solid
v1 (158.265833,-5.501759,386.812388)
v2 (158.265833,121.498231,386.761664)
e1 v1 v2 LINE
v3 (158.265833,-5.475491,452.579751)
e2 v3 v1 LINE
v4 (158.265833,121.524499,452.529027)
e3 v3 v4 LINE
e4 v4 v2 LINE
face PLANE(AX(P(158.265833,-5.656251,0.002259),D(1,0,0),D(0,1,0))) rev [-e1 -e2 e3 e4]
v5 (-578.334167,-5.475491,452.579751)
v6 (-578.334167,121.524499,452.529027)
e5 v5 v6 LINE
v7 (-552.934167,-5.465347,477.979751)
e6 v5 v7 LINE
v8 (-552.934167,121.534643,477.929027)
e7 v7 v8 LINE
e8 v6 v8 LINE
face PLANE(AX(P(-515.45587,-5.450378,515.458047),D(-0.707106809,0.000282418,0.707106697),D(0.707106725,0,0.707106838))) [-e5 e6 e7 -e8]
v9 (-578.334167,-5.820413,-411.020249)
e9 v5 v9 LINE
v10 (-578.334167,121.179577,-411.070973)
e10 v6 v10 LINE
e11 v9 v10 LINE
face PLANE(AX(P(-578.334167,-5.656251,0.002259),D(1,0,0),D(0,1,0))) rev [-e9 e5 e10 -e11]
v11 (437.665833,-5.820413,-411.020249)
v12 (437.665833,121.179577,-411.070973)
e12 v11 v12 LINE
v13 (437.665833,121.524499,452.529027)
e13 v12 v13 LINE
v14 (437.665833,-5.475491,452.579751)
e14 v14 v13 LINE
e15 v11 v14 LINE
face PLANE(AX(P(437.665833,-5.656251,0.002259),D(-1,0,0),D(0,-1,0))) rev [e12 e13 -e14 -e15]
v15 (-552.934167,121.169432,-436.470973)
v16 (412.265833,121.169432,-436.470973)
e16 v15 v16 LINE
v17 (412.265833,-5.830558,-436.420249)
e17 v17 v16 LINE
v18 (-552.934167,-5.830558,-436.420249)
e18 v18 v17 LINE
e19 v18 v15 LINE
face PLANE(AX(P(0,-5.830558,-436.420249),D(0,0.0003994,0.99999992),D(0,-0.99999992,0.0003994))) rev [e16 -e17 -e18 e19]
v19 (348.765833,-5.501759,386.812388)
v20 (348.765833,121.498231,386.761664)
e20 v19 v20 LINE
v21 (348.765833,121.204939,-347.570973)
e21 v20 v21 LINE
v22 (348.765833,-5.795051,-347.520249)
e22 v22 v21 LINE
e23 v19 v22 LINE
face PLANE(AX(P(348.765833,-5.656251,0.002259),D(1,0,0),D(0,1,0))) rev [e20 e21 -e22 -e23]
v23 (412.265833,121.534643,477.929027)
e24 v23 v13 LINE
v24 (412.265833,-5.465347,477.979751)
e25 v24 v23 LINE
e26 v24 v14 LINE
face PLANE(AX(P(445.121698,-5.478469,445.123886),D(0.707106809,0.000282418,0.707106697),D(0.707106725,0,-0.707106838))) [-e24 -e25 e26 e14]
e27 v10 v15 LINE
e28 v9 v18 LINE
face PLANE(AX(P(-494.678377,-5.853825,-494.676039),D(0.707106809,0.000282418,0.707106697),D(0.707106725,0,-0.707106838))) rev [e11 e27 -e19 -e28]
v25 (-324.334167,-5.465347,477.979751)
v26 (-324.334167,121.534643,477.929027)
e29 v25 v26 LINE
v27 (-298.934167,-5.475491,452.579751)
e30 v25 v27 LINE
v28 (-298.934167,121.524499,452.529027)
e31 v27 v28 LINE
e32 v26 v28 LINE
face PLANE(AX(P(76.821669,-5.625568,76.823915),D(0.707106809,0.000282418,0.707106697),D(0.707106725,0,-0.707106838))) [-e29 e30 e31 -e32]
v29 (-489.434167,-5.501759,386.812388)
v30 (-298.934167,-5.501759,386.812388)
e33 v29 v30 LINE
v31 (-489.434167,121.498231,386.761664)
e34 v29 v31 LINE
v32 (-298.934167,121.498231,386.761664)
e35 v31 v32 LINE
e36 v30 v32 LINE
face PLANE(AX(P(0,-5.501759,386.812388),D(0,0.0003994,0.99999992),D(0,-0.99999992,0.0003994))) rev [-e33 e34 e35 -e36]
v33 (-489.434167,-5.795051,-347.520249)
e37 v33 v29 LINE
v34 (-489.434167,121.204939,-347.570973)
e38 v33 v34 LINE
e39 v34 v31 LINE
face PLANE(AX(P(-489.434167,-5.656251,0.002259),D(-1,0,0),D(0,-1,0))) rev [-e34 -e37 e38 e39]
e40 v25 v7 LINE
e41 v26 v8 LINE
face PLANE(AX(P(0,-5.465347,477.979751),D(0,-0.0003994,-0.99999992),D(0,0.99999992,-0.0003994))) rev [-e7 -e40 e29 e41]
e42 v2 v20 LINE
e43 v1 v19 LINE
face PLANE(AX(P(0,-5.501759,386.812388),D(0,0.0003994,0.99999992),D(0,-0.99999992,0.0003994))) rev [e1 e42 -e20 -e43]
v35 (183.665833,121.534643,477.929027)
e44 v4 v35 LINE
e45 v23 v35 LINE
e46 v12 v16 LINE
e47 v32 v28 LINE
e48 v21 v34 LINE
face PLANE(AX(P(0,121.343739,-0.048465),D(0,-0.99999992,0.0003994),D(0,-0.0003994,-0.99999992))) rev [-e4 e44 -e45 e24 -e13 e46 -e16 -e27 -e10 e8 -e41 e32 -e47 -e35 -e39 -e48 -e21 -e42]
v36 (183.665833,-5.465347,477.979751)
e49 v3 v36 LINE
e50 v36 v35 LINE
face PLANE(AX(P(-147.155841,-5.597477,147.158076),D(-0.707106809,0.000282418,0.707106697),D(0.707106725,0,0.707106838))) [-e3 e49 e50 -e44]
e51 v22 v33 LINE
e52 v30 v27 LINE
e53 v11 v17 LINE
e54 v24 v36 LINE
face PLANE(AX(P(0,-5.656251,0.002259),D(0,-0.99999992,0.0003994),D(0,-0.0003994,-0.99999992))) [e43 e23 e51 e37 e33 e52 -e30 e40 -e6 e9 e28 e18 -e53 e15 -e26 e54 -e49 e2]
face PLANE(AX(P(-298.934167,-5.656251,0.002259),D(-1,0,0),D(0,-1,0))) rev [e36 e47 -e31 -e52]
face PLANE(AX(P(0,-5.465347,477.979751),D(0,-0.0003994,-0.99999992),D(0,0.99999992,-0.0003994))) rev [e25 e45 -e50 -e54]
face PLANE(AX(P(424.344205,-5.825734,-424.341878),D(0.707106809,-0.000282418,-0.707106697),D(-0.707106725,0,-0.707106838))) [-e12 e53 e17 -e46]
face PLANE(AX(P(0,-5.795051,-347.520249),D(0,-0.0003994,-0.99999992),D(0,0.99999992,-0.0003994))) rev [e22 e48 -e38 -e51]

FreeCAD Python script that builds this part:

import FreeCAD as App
import Part
import Sketcher
Q = App.Units.Quantity


def add_polygon(sketch, points):
    """Adds a closed chain of lines whose ends are joined by coincident constraints."""
    first, n = sketch.GeometryCount, len(points)
    for a, b in zip(points, points[1:] + points[:1]):
        sketch.addGeometry(Part.LineSegment(App.Vector(*a, 0), App.Vector(*b, 0)), False)
    for i in range(n):
        sketch.addConstraint(Sketcher.Constraint("Coincident", first + i, 2, first + (i + 1) % n, 1))

doc = App.newDocument("Part")
params = doc.addObject("Spreadsheet::Sheet", "Params")
for row, (alias, value) in enumerate([
    ("sketch1_width", "9 in"),
    ("sketch1_width2", "33 in"),
    ("sketch1_width3", "38 in"),
    ("sketch1_width4", "7.5 in"),
    ("pad1_length", "5 in"),
], start=1):
    params.set(f"A{row}", alias)
    params.set(f"B{row}", "=" + value)
    params.setAlias(f"B{row}", alias)

body = doc.addObject("PartDesign::Body", "Body")

# Sketch on an angled plane
sketch1 = body.newObject("Sketcher::SketchObject", "Sketch")
sketch1.Placement = App.Placement(App.Vector(0, 57.843753, -0.000024), App.Rotation(App.Vector(-1, 0, 0), App.Vector(0, -0.0003994, -0.99999992), App.Vector(0, -0.99999992, 0.0003994), "ZXY"))
add_polygon(sketch1, [(-412, -478), (-184, -478), (-158, -453), (-158, -387), (-349, -387), (-349, 348), (489, 348), (489, -387), (299, -387), (299, -453), (324, -478), (553, -478), (578, -453), (578, 411), (553, 436), (-412, 436), (-438, 411), (-438, -453)])  # lines 0-17
sketch1.addConstraint([
    Sketcher.Constraint("Horizontal", 0),
    Sketcher.Constraint("Vertical", 2),
    Sketcher.Constraint("Horizontal", 3),
    Sketcher.Constraint("Vertical", 4),
    Sketcher.Constraint("Horizontal", 5),
    Sketcher.Constraint("Vertical", 6),
    Sketcher.Constraint("Horizontal", 7),
    Sketcher.Constraint("Vertical", 8),
    Sketcher.Constraint("Horizontal", 10),
    Sketcher.Constraint("Vertical", 12),
    Sketcher.Constraint("Horizontal", 14),
    Sketcher.Constraint("Vertical", 16),
    Sketcher.Constraint("Perpendicular", 1, 9),
    Sketcher.Constraint("Perpendicular", 9, 11),
    Sketcher.Constraint("Perpendicular", 11, 13),
    Sketcher.Constraint("Perpendicular", 13, 15),
    Sketcher.Constraint("Perpendicular", 15, 17),
    Sketcher.Constraint("Horizontal", 3, 2, 6, 2),
    Sketcher.Constraint("Horizontal", 1, 2, 8, 2),
    Sketcher.Constraint("Horizontal", 0, 2, 9, 2),
    Sketcher.Constraint("Horizontal", 8, 2, 11, 2),
    Sketcher.Constraint("Horizontal", 12, 2, 15, 2),
    Sketcher.Constraint("Horizontal", 11, 2, 16, 2),
    Sketcher.Constraint("Vertical", 10, 2, 13, 2),
    Sketcher.Constraint("Vertical", 14, 2, 17, 2),
    Sketcher.Constraint("Equal", 3, 7),
    Sketcher.Constraint("Equal", 0, 10),
    Sketcher.Constraint("DistanceX", 0, 1, 0, 2, Q("9 in")),
    Sketcher.Constraint("DistanceX", 5, 1, 5, 2, Q("33 in")),
    Sketcher.Constraint("DistanceX", 14, 2, 14, 1, Q("38 in")),
    Sketcher.Constraint("DistanceX", 3, 2, 3, 1, Q("7.5 in")),
    Sketcher.Constraint("DistanceY", 5, 2, 12, 2, Q("2.5000002 in")),
    Sketcher.Constraint("DistanceY", 12, 1, 12, 2, Q("863.600068 mm")),
    Sketcher.Constraint("DistanceY", 6, 2, 12, 2, Q("797.832701 mm")),
    Sketcher.Constraint("DistanceY", 0, 2, -1, 1, Q("477.95445 mm")),
    Sketcher.Constraint("DistanceX", 0, 2, -1, 1, Q("183.665833 mm")),
])
sketch1.setExpression("Constraints[45]", "Params.sketch1_width")
sketch1.setExpression("Constraints[46]", "Params.sketch1_width2")
sketch1.setExpression("Constraints[47]", "Params.sketch1_width3")
sketch1.setExpression("Constraints[48]", "Params.sketch1_width4")
pad1 = body.newObject("PartDesign::Pad", "Pad")
pad1.Profile = sketch1
pad1.setExpression("Length", "Params.pad1_length")
pad1.Midplane = True

doc.recompute()
